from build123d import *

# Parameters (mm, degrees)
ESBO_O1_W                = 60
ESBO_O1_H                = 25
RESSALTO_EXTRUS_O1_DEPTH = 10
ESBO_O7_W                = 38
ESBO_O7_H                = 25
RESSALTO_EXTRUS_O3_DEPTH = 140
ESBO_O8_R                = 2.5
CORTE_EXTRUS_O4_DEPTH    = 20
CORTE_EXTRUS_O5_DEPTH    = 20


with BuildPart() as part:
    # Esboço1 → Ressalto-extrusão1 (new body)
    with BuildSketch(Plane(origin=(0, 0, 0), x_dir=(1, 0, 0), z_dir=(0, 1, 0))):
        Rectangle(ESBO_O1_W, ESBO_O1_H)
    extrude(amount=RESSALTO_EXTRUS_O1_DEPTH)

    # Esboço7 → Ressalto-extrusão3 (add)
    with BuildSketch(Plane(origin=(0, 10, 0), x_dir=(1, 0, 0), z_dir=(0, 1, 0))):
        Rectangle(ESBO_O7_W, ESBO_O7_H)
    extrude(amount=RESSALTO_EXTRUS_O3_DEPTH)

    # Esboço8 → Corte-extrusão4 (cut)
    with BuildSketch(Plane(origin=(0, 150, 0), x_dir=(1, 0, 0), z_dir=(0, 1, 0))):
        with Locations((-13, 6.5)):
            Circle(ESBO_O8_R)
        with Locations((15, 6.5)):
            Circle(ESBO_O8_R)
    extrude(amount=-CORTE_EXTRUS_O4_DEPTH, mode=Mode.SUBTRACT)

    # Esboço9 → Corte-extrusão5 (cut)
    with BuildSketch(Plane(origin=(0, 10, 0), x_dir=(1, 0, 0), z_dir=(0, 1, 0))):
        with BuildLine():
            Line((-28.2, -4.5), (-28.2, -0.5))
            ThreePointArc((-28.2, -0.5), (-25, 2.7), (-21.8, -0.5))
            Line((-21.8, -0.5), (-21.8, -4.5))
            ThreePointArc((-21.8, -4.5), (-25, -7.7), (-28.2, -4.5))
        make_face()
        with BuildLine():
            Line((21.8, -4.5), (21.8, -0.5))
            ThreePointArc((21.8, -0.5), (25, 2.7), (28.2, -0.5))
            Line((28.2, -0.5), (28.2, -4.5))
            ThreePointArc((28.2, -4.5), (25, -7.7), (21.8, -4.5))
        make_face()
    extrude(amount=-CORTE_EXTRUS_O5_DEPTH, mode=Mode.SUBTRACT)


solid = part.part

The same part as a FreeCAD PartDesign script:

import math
import FreeCAD as App
import Part
import Sketcher

V = App.Vector
Q = App.Units.Quantity


def add_polygon(sketch, points):
    """Adds a closed chain of lines whose ends are joined by coincident constraints."""
    first, n = sketch.GeometryCount, len(points)
    for a, b in zip(points, points[1:] + points[:1]):
        sketch.addGeometry(Part.LineSegment(App.Vector(*a, 0), App.Vector(*b, 0)), False)
    for i in range(n):
        sketch.addConstraint(Sketcher.Constraint("Coincident", first + i, 2, first + (i + 1) % n, 1))

doc = App.newDocument("Part")
params = doc.addObject("Spreadsheet::Sheet", "Params")
for row, (alias, value) in enumerate([
    ("sketch1_width", "60 mm"),
    ("sketch1_height", "25 mm"),
    ("pad1_length", "10 mm"),
    ("sketch2_width", "38 mm"),
    ("sketch2_height", "25 mm"),
    ("pad2_length", "140 mm"),
    ("sketch3_diameter", "5 mm"),
    ("pocket1_length", "20 mm"),
    ("sketch4_radius", "3.2 mm"),
    ("sketch4_height", "4 mm"),
    ("pocket2_length", "20 mm"),
], start=1):
    params.set(f"A{row}", alias)
    params.set(f"B{row}", "=" + value)
    params.setAlias(f"B{row}", alias)

body = doc.addObject("PartDesign::Body", "Body")

sketch1 = body.newObject("Sketcher::SketchObject", "Sketch")
sketch1.AttachmentSupport = (doc.getObject("XZ_Plane"), [""])
sketch1.MapMode = "FlatFace"
add_polygon(sketch1, [(-30, -12.5), (-30, 12.5), (30, 12.5), (30, -12.5)])
sketch1.addConstraint(Sketcher.Constraint("Vertical", 0))
sketch1.addConstraint(Sketcher.Constraint("Horizontal", 1))
sketch1.addConstraint(Sketcher.Constraint("Vertical", 2))
sketch1.addConstraint(Sketcher.Constraint("Horizontal", 3))
sketch1.addConstraint(Sketcher.Constraint("Symmetric", 0, 2, 2, 2, -1, 1))
sketch1.addConstraint(Sketcher.Constraint("DistanceX", 1, 1, 1, 2, Q("60 mm")))
sketch1.addConstraint(Sketcher.Constraint("DistanceY", 0, 1, 0, 2, Q("25 mm")))
sketch1.setExpression("Constraints[9]", "Params.sketch1_width")
sketch1.setExpression("Constraints[10]", "Params.sketch1_height")
pad1 = body.newObject("PartDesign::Pad", "Pad")
pad1.Profile = sketch1
pad1.setExpression("Length", "Params.pad1_length")
pad1.Reversed = True

sketch2 = body.newObject("Sketcher::SketchObject", "Sketch001")
sketch2.AttachmentSupport = (doc.getObject("XZ_Plane"), [""])
sketch2.MapMode = "FlatFace"
sketch2.AttachmentOffset = App.Placement(V(0, 0, -10), App.Rotation())
add_polygon(sketch2, [(-19, -12.5), (-19, 12.5), (19, 12.5), (19, -12.5)])
sketch2.addConstraint(Sketcher.Constraint("Vertical", 0))
sketch2.addConstraint(Sketcher.Constraint("Horizontal", 1))
sketch2.addConstraint(Sketcher.Constraint("Vertical", 2))
sketch2.addConstraint(Sketcher.Constraint("Horizontal", 3))
sketch2.addConstraint(Sketcher.Constraint("Symmetric", 0, 2, 2, 2, -1, 1))
sketch2.addConstraint(Sketcher.Constraint("DistanceX", 1, 1, 1, 2, Q("38 mm")))
sketch2.addConstraint(Sketcher.Constraint("DistanceY", 0, 1, 0, 2, Q("25 mm")))
sketch2.setExpression("Constraints[9]", "Params.sketch2_width")
sketch2.setExpression("Constraints[10]", "Params.sketch2_height")
pad2 = body.newObject("PartDesign::Pad", "Pad001")
pad2.Profile = sketch2
pad2.setExpression("Length", "Params.pad2_length")
pad2.Reversed = True

sketch3 = body.newObject("Sketcher::SketchObject", "Sketch002")
sketch3.AttachmentSupport = (doc.getObject("XZ_Plane"), [""])
sketch3.MapMode = "FlatFace"
sketch3.AttachmentOffset = App.Placement(V(0, 0, -150), App.Rotation())
sketch3.addGeometry(Part.Circle(V(-13, -6.5, 0), V(0, 0, 1), 2.5), False)
sketch3.addGeometry(Part.Circle(V(15, -6.5, 0), V(0, 0, 1), 2.5), False)
sketch3.addConstraint(Sketcher.Constraint("Equal", 0, 1))
sketch3.addConstraint(Sketcher.Constraint("Horizontal", 0, 3, 1, 3))
sketch3.addConstraint(Sketcher.Constraint("Diameter", 0, Q("5 mm")))
sketch3.addConstraint(Sketcher.Constraint("DistanceX", 0, 3, -1, 1, Q("13 mm")))
sketch3.addConstraint(Sketcher.Constraint("DistanceX", -1, 1, 1, 3, Q("15 mm")))
sketch3.addConstraint(Sketcher.Constraint("DistanceY", 0, 3, -1, 1, Q("6.5 mm")))
sketch3.setExpression("Constraints[2]", "Params.sketch3_diameter")
pocket1 = body.newObject("PartDesign::Pocket", "Pocket")
pocket1.Profile = sketch3
pocket1.setExpression("Length", "Params.pocket1_length")
pocket1.Reversed = True

sketch4 = body.newObject("Sketcher::SketchObject", "Sketch003")
sketch4.AttachmentSupport = (doc.getObject("XZ_Plane"), [""])
sketch4.MapMode = "FlatFace"
sketch4.AttachmentOffset = App.Placement(V(0, 0, -10), App.Rotation())
sketch4.addGeometry(Part.LineSegment(V(-28.2, 0.5, 0), V(-28.2, 4.5, 0)), False)
sketch4.addGeometry(Part.ArcOfCircle(Part.Circle(V(-25, 4.5, 0), V(0, 0, 1), 3.2), math.radians(0), math.radians(180)), False)
sketch4.addGeometry(Part.LineSegment(V(-21.8, 4.5, 0), V(-21.8, 0.5, 0)), False)
sketch4.addGeometry(Part.ArcOfCircle(Part.Circle(V(-25, 0.5, 0), V(0, 0, 1), 3.2), math.radians(180), math.radians(360)), False)
sketch4.addGeometry(Part.LineSegment(V(21.8, 0.5, 0), V(21.8, 4.5, 0)), False)
sketch4.addGeometry(Part.ArcOfCircle(Part.Circle(V(25, 4.5, 0), V(0, 0, 1), 3.2), math.radians(0), math.radians(180)), False)
sketch4.addGeometry(Part.LineSegment(V(28.2, 4.5, 0), V(28.2, 0.5, 0)), False)
sketch4.addGeometry(Part.ArcOfCircle(Part.Circle(V(25, 0.5, 0), V(0, 0, 1), 3.2), math.radians(180), math.radians(360)), False)
sketch4.addConstraint(Sketcher.Constraint("Tangent", 0, 2, 1, 2))
sketch4.addConstraint(Sketcher.Constraint("Tangent", 1, 1, 2, 1))
sketch4.addConstraint(Sketcher.Constraint("Tangent", 2, 2, 3, 2))
sketch4.addConstraint(Sketcher.Constraint("Tangent", 3, 1, 0, 1))
sketch4.addConstraint(Sketcher.Constraint("Tangent", 4, 2, 5, 2))
sketch4.addConstraint(Sketcher.Constraint("Tangent", 5, 1, 6, 1))
sketch4.addConstraint(Sketcher.Constraint("Tangent", 6, 2, 7, 2))
sketch4.addConstraint(Sketcher.Constraint("Tangent", 7, 1, 4, 1))
sketch4.addConstraint(Sketcher.Constraint("Vertical", 0))
sketch4.addConstraint(Sketcher.Constraint("Vertical", 2))
sketch4.addConstraint(Sketcher.Constraint("Vertical", 4))
sketch4.addConstraint(Sketcher.Constraint("Vertical", 6))
sketch4.addConstraint(Sketcher.Constraint("Equal", 3, 5))
sketch4.addConstraint(Sketcher.Constraint("Symmetric", 1, 3, 5, 3, -2))
sketch4.addConstraint(Sketcher.Constraint("Horizontal", 3, 3, 7, 3))
sketch4.addConstraint(Sketcher.Constraint("Radius", 1, Q("3.2 mm")))
sketch4.addConstraint(Sketcher.Constraint("DistanceY", 0, 1, 0, 2, Q("4 mm")))
sketch4.addConstraint(Sketcher.Constraint("DistanceX", 1, 3, -1, 1, Q("25 mm")))
sketch4.addConstraint(Sketcher.Constraint("DistanceY", -1, 1, 1, 3, Q("4.5 mm")))
sketch4.setExpression("Constraints[15]", "Params.sketch4_radius")
sketch4.setExpression("Constraints[16]", "Params.sketch4_height")
pocket2 = body.newObject("PartDesign::Pocket", "Pocket001")
pocket2.Profile = sketch4
pocket2.setExpression("Length", "Params.pocket2_length")
pocket2.Reversed = True

doc.recompute()
